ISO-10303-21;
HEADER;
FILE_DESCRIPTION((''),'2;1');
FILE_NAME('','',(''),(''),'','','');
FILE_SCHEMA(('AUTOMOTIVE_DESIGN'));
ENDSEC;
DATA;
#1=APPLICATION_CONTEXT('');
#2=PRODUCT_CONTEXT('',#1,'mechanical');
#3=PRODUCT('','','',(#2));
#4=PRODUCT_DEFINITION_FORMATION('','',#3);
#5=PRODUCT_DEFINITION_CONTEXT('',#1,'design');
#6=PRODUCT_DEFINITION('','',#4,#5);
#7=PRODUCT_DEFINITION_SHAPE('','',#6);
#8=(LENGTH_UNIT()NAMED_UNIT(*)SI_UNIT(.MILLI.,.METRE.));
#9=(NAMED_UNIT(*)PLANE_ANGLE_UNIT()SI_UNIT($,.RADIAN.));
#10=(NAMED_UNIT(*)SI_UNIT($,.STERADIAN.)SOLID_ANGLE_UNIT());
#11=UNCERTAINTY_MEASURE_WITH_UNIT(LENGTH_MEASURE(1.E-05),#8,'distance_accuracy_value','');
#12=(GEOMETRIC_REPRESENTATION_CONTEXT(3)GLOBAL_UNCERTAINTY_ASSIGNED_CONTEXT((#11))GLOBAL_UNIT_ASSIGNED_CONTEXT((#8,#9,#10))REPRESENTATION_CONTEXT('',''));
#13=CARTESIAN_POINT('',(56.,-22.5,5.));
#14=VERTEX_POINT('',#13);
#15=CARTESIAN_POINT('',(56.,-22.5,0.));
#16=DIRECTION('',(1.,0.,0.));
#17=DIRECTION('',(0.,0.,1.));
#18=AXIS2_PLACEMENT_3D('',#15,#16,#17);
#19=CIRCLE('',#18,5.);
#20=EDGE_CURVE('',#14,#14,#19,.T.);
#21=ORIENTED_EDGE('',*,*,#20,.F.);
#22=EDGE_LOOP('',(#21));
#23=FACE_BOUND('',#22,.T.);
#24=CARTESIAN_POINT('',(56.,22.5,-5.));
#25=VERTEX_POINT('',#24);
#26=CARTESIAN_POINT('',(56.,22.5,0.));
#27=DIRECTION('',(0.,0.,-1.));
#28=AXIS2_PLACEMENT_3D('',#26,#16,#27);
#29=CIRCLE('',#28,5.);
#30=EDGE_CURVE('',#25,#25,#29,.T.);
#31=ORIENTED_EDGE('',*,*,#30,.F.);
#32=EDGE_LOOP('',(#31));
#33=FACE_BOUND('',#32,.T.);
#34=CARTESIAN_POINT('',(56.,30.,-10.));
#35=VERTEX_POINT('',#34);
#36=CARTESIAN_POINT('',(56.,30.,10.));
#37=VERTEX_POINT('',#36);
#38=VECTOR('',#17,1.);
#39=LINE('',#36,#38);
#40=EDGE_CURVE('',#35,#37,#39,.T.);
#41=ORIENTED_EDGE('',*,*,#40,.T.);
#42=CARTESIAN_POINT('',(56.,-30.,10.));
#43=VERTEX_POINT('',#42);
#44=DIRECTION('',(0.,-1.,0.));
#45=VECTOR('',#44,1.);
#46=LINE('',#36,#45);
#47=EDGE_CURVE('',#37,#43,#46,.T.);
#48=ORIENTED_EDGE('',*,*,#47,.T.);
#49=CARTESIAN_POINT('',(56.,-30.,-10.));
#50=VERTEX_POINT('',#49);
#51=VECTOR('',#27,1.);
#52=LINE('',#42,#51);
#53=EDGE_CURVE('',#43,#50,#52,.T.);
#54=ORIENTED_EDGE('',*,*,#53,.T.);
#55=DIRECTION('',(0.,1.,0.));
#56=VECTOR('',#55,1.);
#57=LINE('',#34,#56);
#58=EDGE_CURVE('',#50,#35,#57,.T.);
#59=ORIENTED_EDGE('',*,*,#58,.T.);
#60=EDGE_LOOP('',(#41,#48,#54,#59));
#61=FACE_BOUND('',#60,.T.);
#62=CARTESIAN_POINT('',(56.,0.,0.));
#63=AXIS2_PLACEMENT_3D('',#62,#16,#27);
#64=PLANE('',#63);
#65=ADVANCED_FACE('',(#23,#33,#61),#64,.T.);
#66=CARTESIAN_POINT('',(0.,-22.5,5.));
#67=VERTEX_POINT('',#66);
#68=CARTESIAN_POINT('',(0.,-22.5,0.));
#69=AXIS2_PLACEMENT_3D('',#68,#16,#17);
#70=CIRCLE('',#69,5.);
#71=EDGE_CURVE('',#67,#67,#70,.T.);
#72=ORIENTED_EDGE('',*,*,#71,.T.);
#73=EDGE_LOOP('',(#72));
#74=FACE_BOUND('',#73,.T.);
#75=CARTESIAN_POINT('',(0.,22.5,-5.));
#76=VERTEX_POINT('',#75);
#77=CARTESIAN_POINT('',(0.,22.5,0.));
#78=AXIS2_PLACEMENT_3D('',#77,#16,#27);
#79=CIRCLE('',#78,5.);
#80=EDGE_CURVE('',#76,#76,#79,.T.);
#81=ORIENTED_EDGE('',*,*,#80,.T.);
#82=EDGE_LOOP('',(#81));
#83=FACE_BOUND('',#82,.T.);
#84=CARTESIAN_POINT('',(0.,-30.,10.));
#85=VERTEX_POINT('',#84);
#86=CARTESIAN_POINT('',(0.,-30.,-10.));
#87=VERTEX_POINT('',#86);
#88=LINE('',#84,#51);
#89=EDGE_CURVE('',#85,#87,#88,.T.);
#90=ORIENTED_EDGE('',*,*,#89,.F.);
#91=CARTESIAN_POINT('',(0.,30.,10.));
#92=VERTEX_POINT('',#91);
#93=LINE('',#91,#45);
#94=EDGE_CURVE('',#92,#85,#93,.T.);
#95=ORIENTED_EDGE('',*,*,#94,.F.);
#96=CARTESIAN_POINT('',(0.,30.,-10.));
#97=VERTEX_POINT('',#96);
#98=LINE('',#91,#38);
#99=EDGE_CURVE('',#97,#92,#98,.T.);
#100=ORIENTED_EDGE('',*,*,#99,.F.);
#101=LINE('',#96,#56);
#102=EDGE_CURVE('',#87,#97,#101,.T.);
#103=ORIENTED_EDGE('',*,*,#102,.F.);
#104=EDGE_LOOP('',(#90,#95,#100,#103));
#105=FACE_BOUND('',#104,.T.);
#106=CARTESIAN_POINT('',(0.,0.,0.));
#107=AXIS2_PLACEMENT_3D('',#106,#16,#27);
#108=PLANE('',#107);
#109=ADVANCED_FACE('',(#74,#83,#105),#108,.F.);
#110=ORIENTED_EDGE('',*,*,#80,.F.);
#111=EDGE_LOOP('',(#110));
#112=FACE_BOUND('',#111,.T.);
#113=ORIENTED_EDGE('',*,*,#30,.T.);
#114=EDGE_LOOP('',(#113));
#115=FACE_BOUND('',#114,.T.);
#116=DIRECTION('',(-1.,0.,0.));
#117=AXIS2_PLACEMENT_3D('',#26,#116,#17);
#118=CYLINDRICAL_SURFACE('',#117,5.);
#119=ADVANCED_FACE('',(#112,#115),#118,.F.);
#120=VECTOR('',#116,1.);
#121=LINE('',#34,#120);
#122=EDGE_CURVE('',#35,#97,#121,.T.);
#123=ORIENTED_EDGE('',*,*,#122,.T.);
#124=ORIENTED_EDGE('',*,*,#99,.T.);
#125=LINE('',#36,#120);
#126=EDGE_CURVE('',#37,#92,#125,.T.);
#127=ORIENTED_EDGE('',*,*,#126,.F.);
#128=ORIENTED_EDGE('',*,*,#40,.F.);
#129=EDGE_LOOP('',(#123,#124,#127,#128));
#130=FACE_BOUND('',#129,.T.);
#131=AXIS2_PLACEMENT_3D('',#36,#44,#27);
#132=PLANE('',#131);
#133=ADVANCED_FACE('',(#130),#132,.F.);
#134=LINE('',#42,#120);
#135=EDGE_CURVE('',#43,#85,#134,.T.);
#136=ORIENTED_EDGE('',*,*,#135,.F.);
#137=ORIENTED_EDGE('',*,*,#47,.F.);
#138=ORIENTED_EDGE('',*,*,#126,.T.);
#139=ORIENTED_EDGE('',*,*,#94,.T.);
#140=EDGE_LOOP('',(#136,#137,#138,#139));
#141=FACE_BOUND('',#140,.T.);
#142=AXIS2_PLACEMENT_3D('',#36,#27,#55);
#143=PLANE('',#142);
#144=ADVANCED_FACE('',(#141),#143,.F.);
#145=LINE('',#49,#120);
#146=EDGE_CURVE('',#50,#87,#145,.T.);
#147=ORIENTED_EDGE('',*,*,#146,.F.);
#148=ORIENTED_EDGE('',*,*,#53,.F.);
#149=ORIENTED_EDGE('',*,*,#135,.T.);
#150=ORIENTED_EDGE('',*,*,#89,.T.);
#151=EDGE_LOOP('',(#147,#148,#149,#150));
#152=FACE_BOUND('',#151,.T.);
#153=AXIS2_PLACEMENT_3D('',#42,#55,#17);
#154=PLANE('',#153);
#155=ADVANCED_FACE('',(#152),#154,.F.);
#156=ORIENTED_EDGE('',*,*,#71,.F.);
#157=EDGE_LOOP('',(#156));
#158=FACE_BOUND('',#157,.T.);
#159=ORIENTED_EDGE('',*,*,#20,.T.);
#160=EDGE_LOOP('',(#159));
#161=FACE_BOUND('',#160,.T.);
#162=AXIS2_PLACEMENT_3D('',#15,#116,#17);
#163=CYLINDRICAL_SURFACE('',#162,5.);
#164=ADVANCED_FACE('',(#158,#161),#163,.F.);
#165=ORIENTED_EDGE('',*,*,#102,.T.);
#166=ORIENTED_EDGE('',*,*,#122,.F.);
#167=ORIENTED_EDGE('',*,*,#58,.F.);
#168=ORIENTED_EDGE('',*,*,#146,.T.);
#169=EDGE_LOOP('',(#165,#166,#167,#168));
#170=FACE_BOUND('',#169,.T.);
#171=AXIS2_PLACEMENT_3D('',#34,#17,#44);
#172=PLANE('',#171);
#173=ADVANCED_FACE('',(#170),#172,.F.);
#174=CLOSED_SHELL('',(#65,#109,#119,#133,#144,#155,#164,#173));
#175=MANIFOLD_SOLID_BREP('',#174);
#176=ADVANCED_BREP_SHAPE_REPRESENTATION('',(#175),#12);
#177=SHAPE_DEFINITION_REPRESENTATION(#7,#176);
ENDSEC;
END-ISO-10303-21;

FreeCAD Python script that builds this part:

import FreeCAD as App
import Part
import Sketcher


def add_polygon(sketch, points):
    """Adds a closed chain of lines whose ends are joined by coincident constraints."""
    first, n = sketch.GeometryCount, len(points)
    for a, b in zip(points, points[1:] + points[:1]):
        sketch.addGeometry(Part.LineSegment(App.Vector(*a, 0), App.Vector(*b, 0)), False)
    for i in range(n):
        sketch.addConstraint(Sketcher.Constraint("Coincident", first + i, 2, first + (i + 1) % n, 1))

doc = App.newDocument("Part")
params = doc.addObject("Spreadsheet::Sheet", "Params")
for row, (alias, value) in enumerate([
    ("sketch1_diameter", "10 mm"),
    ("sketch1_width", "60 mm"),
    ("sketch1_height", "20 mm"),
    ("pad1_length", "56 mm"),
], start=1):
    params.set(f"A{row}", alias)
    params.set(f"B{row}", "=" + value)
    params.setAlias(f"B{row}", alias)

body = doc.addObject("PartDesign::Body", "Body")

# Sketch on YZ plane
sketch1 = body.newObject("Sketcher::SketchObject", "Sketch")
sketch1.AttachmentSupport = (doc.getObject("YZ_Plane"), [""])
sketch1.MapMode = "FlatFace"
add_polygon(sketch1, [(30, 10), (-30, 10), (-30, -10), (30, -10)])  # lines 0-3
sketch1.addGeometry(Part.Circle(App.Vector(-22.5, 0, 0), App.Vector(0, 0, 1), 5), False)  # 4
sketch1.addGeometry(Part.Circle(App.Vector(22.5, 0, 0), App.Vector(0, 0, 1), 5), False)  # 5
sketch1.addConstraint([
    Sketcher.Constraint("Horizontal", 0),
    Sketcher.Constraint("Vertical", 1),
    Sketcher.Constraint("Horizontal", 2),
    Sketcher.Constraint("Vertical", 3),
    Sketcher.Constraint("Equal", 4, 5),
    Sketcher.Constraint("Symmetric", 4, 3, 5, 3, -1, 1),
    Sketcher.Constraint("Symmetric", 0, 2, 2, 2, -1, 1),
    Sketcher.Constraint("PointOnObject", 4, 3, -1),
    Sketcher.Constraint("Diameter", 4, 10.0),
    Sketcher.Constraint("DistanceX", 0, 2, 0, 1, 60.0),
    Sketcher.Constraint("DistanceY", 1, 2, 1, 1, 20.0),
    Sketcher.Constraint("DistanceX", 4, 3, 5, 3, 45.0),
])
sketch1.setExpression("Constraints[12]", "Params.sketch1_diameter")
sketch1.setExpression("Constraints[13]", "Params.sketch1_width")
sketch1.setExpression("Constraints[14]", "Params.sketch1_height")
pad1 = body.newObject("PartDesign::Pad", "Pad")
pad1.Profile = sketch1
pad1.setExpression("Length", "Params.pad1_length")

doc.recompute()
